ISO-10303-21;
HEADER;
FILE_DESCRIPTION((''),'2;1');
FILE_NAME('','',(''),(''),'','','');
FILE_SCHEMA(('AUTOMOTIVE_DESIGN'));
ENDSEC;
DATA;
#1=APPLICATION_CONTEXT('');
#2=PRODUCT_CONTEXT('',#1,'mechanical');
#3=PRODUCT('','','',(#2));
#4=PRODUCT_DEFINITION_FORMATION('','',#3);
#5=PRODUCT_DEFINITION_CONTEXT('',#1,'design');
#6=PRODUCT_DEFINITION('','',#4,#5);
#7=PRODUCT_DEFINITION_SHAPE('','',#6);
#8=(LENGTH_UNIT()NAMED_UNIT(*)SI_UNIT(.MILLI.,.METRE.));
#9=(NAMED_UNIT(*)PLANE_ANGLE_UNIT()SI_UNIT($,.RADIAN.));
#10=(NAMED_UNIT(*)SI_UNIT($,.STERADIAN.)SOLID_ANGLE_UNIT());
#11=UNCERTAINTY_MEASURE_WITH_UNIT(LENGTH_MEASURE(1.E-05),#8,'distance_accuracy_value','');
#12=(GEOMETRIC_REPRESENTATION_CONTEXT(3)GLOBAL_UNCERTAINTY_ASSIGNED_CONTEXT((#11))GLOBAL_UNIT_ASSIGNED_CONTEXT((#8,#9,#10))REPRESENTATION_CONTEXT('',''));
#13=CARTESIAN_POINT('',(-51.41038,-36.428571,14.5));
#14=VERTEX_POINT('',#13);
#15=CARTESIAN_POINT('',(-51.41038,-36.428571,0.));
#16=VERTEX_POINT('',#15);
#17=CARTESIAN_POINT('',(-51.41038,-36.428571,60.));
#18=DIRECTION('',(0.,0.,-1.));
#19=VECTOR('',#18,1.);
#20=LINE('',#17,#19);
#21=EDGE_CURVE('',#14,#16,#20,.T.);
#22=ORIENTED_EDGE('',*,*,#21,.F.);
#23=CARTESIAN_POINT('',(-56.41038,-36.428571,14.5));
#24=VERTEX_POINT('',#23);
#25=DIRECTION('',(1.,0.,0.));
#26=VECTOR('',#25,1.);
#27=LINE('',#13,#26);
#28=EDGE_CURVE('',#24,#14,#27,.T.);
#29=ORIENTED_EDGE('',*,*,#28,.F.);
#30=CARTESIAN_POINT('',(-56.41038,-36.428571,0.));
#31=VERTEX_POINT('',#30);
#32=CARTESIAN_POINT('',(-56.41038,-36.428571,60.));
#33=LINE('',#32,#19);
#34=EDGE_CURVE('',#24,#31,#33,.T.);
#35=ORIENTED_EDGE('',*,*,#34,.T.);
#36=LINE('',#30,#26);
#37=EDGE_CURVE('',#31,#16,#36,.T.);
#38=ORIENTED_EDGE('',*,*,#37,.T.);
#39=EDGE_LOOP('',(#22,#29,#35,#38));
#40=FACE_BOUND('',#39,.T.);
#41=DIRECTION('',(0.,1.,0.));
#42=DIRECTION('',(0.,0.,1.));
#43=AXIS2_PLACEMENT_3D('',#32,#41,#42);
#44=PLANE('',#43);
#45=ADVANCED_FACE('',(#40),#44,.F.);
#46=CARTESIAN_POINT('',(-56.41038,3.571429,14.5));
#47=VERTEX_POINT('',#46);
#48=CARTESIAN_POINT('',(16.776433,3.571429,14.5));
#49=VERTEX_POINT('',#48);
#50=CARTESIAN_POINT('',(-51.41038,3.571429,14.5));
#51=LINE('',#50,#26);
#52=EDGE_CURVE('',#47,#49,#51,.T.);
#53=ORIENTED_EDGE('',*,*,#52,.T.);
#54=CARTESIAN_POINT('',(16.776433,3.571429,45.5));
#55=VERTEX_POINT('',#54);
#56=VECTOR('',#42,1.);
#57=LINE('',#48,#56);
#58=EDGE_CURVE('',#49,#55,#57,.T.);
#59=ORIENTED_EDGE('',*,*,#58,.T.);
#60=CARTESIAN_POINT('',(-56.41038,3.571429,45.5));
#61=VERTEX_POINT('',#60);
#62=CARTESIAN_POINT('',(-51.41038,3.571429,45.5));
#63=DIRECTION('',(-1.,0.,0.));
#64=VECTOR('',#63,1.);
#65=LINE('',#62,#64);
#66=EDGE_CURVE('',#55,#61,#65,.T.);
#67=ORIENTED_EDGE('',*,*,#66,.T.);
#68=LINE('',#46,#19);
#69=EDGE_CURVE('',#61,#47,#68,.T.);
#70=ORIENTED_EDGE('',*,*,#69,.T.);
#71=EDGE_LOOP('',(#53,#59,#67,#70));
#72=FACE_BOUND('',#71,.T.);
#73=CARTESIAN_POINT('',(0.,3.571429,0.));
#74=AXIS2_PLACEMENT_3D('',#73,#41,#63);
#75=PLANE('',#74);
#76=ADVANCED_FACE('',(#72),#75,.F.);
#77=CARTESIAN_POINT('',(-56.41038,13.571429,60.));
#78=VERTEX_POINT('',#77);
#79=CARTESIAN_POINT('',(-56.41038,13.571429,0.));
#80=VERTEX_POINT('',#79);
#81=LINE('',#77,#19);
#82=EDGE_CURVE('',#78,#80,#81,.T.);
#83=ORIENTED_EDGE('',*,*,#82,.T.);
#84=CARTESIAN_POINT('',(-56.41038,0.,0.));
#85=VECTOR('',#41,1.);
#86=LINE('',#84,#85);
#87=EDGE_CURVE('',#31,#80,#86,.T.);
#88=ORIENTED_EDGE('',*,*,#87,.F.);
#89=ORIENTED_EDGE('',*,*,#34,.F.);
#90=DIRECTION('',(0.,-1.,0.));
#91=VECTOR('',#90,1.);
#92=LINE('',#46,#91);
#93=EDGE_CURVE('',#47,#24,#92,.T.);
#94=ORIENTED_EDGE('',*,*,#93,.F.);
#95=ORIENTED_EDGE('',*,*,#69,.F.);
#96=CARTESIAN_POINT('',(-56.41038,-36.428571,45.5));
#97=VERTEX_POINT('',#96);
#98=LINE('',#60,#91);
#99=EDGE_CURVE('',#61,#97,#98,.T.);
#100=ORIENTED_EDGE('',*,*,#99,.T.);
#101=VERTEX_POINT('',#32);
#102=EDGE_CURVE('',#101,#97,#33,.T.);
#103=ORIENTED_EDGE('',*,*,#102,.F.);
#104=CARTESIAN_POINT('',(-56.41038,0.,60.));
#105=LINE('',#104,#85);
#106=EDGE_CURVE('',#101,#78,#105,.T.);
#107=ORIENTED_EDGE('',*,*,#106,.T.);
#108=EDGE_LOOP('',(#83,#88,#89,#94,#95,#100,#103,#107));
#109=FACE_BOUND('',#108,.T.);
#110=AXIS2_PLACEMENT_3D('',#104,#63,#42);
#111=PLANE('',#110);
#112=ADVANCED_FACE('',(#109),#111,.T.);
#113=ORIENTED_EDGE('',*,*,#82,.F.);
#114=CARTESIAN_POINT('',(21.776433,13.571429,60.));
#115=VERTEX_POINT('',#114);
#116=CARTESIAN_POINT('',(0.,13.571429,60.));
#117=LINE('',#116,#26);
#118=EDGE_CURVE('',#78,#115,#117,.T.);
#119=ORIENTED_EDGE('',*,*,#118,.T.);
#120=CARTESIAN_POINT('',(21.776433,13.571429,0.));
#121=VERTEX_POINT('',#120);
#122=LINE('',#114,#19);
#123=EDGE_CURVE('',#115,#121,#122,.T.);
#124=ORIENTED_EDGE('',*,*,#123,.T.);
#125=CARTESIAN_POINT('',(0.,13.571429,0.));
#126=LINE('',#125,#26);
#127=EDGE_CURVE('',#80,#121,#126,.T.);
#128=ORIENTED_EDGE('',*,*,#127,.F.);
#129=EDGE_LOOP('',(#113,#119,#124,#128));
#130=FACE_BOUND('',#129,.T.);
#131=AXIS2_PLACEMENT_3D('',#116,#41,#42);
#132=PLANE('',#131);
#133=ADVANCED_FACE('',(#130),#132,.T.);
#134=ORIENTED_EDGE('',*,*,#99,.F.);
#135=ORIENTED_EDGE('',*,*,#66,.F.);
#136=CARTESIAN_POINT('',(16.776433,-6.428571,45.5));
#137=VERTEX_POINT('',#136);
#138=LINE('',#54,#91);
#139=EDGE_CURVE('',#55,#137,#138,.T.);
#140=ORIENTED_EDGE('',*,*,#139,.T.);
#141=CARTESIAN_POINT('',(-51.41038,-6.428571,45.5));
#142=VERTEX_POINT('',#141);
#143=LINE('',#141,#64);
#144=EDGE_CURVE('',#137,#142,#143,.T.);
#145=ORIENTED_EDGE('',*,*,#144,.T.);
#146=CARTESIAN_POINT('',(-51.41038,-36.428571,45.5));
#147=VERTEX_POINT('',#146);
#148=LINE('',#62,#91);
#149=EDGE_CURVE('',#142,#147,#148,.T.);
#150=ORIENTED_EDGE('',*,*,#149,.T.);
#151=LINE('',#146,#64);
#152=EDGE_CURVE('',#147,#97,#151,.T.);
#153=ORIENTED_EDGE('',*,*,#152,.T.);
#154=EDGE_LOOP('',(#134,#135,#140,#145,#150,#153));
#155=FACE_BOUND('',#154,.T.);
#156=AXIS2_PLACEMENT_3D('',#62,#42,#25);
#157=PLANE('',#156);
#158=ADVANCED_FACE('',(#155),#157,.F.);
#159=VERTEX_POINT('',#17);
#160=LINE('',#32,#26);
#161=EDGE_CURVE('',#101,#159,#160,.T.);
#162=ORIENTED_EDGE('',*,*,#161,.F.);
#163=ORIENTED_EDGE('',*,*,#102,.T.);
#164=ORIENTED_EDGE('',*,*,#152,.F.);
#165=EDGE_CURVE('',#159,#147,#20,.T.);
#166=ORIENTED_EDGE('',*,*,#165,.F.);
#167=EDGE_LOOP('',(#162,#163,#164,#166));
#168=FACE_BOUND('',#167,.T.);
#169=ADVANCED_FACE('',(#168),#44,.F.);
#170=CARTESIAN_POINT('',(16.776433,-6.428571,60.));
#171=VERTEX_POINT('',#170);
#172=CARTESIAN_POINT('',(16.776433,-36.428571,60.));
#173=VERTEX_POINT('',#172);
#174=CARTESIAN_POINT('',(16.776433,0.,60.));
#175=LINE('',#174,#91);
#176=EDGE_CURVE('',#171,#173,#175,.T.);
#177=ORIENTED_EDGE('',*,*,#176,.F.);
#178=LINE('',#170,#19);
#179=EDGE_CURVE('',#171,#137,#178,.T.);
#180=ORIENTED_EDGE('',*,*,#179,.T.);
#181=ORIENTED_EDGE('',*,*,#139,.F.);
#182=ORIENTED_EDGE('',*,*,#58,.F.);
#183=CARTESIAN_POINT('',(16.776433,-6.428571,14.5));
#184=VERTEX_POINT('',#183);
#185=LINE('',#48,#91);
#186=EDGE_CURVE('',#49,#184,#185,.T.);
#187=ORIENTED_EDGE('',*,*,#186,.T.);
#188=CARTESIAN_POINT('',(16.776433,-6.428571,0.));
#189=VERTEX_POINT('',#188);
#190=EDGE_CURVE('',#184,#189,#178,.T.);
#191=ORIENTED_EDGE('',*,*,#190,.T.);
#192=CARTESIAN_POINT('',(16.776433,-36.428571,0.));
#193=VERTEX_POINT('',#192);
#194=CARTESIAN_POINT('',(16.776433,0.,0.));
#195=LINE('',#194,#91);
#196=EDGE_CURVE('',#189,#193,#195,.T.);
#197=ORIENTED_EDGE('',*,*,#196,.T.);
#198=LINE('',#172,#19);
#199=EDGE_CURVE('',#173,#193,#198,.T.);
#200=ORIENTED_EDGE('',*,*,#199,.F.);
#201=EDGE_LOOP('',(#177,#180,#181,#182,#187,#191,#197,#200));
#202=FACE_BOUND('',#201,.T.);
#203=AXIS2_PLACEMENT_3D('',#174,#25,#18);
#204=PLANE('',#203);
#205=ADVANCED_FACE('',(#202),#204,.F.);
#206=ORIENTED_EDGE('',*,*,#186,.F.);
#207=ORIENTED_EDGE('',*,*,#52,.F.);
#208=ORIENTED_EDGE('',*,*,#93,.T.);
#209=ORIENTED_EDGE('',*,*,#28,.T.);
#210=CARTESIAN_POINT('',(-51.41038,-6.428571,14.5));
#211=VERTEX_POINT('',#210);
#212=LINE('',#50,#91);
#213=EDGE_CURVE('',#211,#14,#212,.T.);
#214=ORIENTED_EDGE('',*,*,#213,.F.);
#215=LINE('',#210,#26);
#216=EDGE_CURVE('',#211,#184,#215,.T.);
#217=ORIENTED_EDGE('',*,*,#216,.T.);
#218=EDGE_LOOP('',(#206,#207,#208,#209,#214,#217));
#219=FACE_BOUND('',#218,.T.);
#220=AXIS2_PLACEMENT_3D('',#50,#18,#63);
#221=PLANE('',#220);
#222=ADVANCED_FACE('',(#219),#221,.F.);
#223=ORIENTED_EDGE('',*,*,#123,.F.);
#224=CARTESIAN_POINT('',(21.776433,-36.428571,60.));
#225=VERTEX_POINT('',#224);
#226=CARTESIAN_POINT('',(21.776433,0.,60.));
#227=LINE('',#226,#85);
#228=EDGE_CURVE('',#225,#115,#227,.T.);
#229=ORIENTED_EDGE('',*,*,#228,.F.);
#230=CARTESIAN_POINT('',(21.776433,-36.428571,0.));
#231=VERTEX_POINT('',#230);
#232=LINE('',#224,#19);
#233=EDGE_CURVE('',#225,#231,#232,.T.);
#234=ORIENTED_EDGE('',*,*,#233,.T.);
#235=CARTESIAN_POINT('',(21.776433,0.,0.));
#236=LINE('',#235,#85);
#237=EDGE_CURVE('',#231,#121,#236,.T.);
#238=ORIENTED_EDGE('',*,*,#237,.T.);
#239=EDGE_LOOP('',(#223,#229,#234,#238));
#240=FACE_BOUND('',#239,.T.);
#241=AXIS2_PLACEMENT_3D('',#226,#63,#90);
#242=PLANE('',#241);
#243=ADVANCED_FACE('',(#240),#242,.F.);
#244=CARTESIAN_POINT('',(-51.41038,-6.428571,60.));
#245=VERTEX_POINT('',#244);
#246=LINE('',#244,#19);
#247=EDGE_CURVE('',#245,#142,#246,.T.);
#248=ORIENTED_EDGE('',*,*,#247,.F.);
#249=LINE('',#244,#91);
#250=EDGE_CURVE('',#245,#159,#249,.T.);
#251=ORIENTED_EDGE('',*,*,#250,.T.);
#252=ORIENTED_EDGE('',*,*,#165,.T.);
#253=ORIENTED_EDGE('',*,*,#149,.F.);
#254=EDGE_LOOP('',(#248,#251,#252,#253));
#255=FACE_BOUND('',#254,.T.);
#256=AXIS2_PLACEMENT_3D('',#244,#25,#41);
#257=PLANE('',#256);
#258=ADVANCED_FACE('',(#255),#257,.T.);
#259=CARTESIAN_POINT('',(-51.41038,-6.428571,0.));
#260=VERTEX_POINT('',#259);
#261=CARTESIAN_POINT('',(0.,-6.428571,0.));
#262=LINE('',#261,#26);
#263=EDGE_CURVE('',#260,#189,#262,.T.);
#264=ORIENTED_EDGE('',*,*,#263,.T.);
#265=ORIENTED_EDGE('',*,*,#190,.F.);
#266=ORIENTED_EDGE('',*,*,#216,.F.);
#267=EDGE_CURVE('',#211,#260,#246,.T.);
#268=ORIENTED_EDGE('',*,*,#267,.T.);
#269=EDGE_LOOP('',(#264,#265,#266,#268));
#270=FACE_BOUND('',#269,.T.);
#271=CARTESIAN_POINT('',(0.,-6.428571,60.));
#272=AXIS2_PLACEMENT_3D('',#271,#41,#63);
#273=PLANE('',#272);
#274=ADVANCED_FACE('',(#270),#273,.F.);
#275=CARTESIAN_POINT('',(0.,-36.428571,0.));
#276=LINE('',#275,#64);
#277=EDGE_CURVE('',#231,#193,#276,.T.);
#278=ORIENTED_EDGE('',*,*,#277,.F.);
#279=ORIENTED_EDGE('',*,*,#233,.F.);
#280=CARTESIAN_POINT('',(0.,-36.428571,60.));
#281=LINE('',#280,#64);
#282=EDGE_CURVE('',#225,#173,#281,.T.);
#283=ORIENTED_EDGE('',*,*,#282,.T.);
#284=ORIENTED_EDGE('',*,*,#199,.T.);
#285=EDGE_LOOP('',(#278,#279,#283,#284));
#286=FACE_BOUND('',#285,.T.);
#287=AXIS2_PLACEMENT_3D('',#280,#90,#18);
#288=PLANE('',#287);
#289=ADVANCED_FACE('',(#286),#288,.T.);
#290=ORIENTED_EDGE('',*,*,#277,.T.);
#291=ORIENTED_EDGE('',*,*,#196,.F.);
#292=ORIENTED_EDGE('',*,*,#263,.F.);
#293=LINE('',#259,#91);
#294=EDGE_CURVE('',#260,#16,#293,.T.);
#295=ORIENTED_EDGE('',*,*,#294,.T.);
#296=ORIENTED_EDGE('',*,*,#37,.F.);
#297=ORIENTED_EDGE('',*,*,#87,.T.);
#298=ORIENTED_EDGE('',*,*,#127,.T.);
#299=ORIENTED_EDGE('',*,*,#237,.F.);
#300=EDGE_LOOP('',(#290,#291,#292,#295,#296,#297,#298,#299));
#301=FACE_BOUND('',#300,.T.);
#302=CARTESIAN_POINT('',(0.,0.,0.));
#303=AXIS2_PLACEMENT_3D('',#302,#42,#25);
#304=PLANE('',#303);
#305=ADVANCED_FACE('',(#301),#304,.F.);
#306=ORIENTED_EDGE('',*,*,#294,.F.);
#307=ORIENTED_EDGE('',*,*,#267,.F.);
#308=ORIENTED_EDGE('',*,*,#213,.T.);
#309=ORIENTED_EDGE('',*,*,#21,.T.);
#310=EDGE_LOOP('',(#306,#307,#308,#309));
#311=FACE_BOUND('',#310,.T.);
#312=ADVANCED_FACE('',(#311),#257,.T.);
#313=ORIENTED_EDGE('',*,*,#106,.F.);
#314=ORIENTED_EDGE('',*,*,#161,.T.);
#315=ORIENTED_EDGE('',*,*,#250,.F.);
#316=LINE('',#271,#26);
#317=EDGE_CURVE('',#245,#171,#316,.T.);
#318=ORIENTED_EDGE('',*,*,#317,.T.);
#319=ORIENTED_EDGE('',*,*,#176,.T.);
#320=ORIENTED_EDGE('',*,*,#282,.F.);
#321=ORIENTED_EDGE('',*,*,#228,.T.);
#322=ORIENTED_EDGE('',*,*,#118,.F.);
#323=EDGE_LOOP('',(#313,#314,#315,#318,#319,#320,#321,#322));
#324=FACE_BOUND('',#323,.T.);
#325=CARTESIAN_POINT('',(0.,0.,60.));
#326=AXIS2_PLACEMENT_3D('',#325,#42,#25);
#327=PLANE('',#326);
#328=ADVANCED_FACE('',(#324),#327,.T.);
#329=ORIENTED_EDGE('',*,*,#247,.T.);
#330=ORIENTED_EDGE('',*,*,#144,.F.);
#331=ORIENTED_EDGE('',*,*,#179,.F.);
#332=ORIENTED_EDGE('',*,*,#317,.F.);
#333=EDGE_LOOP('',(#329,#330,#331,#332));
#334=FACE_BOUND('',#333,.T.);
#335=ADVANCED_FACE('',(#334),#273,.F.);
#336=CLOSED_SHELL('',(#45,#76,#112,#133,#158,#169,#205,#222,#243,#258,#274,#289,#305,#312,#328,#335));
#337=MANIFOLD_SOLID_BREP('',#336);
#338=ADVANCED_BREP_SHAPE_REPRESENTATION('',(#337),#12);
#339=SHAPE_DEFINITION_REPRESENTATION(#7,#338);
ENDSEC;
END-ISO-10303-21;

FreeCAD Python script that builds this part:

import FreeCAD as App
import Part
import Sketcher
from FreeCAD import Vector
Q = App.Units.Quantity

doc = App.newDocument("Part")
body = doc.addObject("PartDesign::Body", "Body")

# Sketch on XY plane
sketch1 = body.newObject("Sketcher::SketchObject", "Sketch")
sketch1.AttachmentSupport = (doc.getObject("XY_Plane"), [""])
sketch1.MapMode = "FlatFace"
sketch1.addGeometry(Part.LineSegment(Vector(-56, 14, 0), Vector(-56, -36, 0)), False)
sketch1.addGeometry(Part.LineSegment(Vector(-56, -36, 0), Vector(-51, -36, 0)), False)
sketch1.addGeometry(Part.LineSegment(Vector(-51, -36, 0), Vector(-51, -6, 0)), False)
sketch1.addGeometry(Part.LineSegment(Vector(-51, -6, 0), Vector(17, -6, 0)), False)
sketch1.addGeometry(Part.LineSegment(Vector(17, -6, 0), Vector(17, -36, 0)), False)
sketch1.addGeometry(Part.LineSegment(Vector(17, -36, 0), Vector(22, -36, 0)), False)
sketch1.addGeometry(Part.LineSegment(Vector(22, -36, 0), Vector(22, 14, 0)), False)
sketch1.addGeometry(Part.LineSegment(Vector(22, 14, 0), Vector(-56, 14, 0)), False)
sketch1.addConstraint(Sketcher.Constraint("Coincident", 0, 2, 1, 1))
sketch1.addConstraint(Sketcher.Constraint("Coincident", 1, 2, 2, 1))
sketch1.addConstraint(Sketcher.Constraint("Coincident", 2, 2, 3, 1))
sketch1.addConstraint(Sketcher.Constraint("Coincident", 3, 2, 4, 1))
sketch1.addConstraint(Sketcher.Constraint("Coincident", 4, 2, 5, 1))
sketch1.addConstraint(Sketcher.Constraint("Coincident", 5, 2, 6, 1))
sketch1.addConstraint(Sketcher.Constraint("Coincident", 6, 2, 7, 1))
sketch1.addConstraint(Sketcher.Constraint("Coincident", 7, 2, 0, 1))
sketch1.addConstraint(Sketcher.Constraint("Vertical", 0))
sketch1.addConstraint(Sketcher.Constraint("Horizontal", 1))
sketch1.addConstraint(Sketcher.Constraint("Vertical", 2))
sketch1.addConstraint(Sketcher.Constraint("Horizontal", 3))
sketch1.addConstraint(Sketcher.Constraint("Vertical", 4))
sketch1.addConstraint(Sketcher.Constraint("Horizontal", 5))
sketch1.addConstraint(Sketcher.Constraint("Vertical", 6))
sketch1.addConstraint(Sketcher.Constraint("Horizontal", 7))
sketch1.addConstraint(Sketcher.Constraint("Horizontal", 1, 2, 4, 2))
sketch1.addConstraint(Sketcher.Constraint("Equal", 1, 5))
sketch1.addConstraint(Sketcher.Constraint("DistanceX", 1, 1, 1, 2, Q("5 mm")))
sketch1.addConstraint(Sketcher.Constraint("DistanceY", 0, 2, 0, 1, Q("50 mm")))
sketch1.addConstraint(Sketcher.Constraint("DistanceY", 2, 1, 2, 2, Q("30 mm")))
sketch1.addConstraint(Sketcher.Constraint("DistanceX", 3, 1, 3, 2, Q("68.186813 mm")))
sketch1.addConstraint(Sketcher.Constraint("DistanceX", 0, 2, -1, 1, Q("56.41038 mm")))
sketch1.addConstraint(Sketcher.Constraint("DistanceY", 0, 2, -1, 1, Q("36.428571 mm")))
pad1 = body.newObject("PartDesign::Pad", "Pad")
pad1.Profile = sketch1
pad1.Length = 60

# Sketch on XZ plane
sketch2 = body.newObject("Sketcher::SketchObject", "Sketch001")
sketch2.AttachmentSupport = (doc.getObject("XZ_Plane"), [""])
sketch2.MapMode = "FlatFace"
sketch2.AttachmentOffset = App.Placement(Vector(0, 0, 6.428571), App.Rotation())
sketch2.addGeometry(Part.LineSegment(Vector(-51, 46, 0), Vector(-51, 14, 0)), False)
sketch2.addGeometry(Part.LineSegment(Vector(-51, 14, 0), Vector(17, 14, 0)), False)
sketch2.addGeometry(Part.LineSegment(Vector(17, 14, 0), Vector(17, 46, 0)), False)
sketch2.addGeometry(Part.LineSegment(Vector(17, 46, 0), Vector(-51, 46, 0)), False)
sketch2.addConstraint(Sketcher.Constraint("Coincident", 0, 2, 1, 1))
sketch2.addConstraint(Sketcher.Constraint("Coincident", 1, 2, 2, 1))
sketch2.addConstraint(Sketcher.Constraint("Coincident", 2, 2, 3, 1))
sketch2.addConstraint(Sketcher.Constraint("Coincident", 3, 2, 0, 1))
sketch2.addConstraint(Sketcher.Constraint("Vertical", 0))
sketch2.addConstraint(Sketcher.Constraint("Horizontal", 1))
sketch2.addConstraint(Sketcher.Constraint("Vertical", 2))
sketch2.addConstraint(Sketcher.Constraint("Horizontal", 3))
sketch2.addConstraint(Sketcher.Constraint("DistanceY", 0, 2, 0, 1, Q("31 mm")))
sketch2.addConstraint(Sketcher.Constraint("DistanceY", -1, 1, 0, 2, Q("14.5 mm")))
sketch2.addConstraint(Sketcher.Constraint("DistanceX", 1, 1, 1, 2, Q("68.186813 mm")))
sketch2.addConstraint(Sketcher.Constraint("DistanceX", 0, 2, -1, 1, Q("51.41038 mm")))
pocket1 = body.newObject("PartDesign::Pocket", "Pocket")
pocket1.Profile = sketch2
pocket1.Length = 10

# Sketch on XZ plane
sketch3 = body.newObject("Sketcher::SketchObject", "Sketch002")
sketch3.AttachmentSupport = (doc.getObject("XZ_Plane"), [""])
sketch3.MapMode = "FlatFace"
sketch3.AttachmentOffset = App.Placement(Vector(0, 0, 36.428571), App.Rotation())
sketch3.addGeometry(Part.LineSegment(Vector(-56, 46, 0), Vector(-56, 14, 0)), False)
sketch3.addGeometry(Part.LineSegment(Vector(-56, 14, 0), Vector(-51, 14, 0)), False)
sketch3.addGeometry(Part.LineSegment(Vector(-51, 14, 0), Vector(-51, 46, 0)), False)
sketch3.addGeometry(Part.LineSegment(Vector(-51, 46, 0), Vector(-56, 46, 0)), False)
sketch3.addConstraint(Sketcher.Constraint("Coincident", 0, 2, 1, 1))
sketch3.addConstraint(Sketcher.Constraint("Coincident", 1, 2, 2, 1))
sketch3.addConstraint(Sketcher.Constraint("Coincident", 2, 2, 3, 1))
sketch3.addConstraint(Sketcher.Constraint("Coincident", 3, 2, 0, 1))
sketch3.addConstraint(Sketcher.Constraint("Vertical", 0))
sketch3.addConstraint(Sketcher.Constraint("Horizontal", 1))
sketch3.addConstraint(Sketcher.Constraint("Vertical", 2))
sketch3.addConstraint(Sketcher.Constraint("Horizontal", 3))
sketch3.addConstraint(Sketcher.Constraint("DistanceX", 1, 1, 1, 2, Q("5 mm")))
sketch3.addConstraint(Sketcher.Constraint("DistanceY", 0, 2, 0, 1, Q("31 mm")))
sketch3.addConstraint(Sketcher.Constraint("DistanceY", -1, 1, 0, 2, Q("14.5 mm")))
sketch3.addConstraint(Sketcher.Constraint("DistanceX", 0, 2, -1, 1, Q("56.41038 mm")))
pocket2 = body.newObject("PartDesign::Pocket", "Pocket001")
pocket2.Profile = sketch3
pocket2.Length = 40

doc.recompute()
